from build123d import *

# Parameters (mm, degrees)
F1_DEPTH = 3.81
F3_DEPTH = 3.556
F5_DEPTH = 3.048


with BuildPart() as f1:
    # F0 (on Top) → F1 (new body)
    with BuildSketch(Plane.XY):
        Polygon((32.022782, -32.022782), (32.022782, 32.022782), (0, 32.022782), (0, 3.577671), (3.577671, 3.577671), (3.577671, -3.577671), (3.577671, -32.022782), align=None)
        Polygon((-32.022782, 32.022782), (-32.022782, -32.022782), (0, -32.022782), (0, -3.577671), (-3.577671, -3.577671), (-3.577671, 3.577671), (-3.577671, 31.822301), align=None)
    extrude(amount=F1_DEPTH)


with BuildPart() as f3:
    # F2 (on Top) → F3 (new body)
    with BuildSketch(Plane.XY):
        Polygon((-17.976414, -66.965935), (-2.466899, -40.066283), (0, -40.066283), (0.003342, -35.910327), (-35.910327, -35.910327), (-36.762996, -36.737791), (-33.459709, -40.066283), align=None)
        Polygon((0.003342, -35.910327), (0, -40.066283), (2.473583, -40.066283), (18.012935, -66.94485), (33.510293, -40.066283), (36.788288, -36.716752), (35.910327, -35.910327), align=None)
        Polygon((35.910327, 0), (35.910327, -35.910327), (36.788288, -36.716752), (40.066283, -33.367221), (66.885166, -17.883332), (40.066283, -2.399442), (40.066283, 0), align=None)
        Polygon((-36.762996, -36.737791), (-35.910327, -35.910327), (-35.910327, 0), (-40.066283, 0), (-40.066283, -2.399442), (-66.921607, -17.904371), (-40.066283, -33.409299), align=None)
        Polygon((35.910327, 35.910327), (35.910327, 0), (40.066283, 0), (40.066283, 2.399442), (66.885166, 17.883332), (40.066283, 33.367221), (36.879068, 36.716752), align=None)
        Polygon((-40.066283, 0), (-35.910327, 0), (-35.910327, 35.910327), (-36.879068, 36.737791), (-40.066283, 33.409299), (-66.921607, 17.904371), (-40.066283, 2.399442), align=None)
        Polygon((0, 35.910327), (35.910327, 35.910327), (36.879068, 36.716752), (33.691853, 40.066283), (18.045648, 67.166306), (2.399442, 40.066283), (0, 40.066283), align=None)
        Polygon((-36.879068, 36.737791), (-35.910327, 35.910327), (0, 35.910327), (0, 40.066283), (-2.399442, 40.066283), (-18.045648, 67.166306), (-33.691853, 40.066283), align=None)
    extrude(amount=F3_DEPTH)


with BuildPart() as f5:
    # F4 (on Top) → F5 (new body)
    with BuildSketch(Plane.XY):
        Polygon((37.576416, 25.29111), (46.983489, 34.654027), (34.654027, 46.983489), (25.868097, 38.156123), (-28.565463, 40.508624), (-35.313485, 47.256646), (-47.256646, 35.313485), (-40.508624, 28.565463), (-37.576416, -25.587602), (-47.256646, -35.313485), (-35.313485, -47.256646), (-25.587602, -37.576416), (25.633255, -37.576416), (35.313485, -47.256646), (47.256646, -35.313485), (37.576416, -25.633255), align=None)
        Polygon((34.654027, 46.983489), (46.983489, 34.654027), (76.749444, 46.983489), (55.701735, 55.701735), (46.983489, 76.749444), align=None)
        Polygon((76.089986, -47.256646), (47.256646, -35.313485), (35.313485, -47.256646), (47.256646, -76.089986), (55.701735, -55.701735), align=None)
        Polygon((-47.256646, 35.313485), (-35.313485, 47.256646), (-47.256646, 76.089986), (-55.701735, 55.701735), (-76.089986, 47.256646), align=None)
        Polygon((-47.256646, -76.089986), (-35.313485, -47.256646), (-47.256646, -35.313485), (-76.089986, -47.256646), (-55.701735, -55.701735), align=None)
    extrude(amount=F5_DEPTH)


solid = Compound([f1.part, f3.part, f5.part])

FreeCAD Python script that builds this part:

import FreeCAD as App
import Part
import Sketcher
Q = App.Units.Quantity


def add_polygon(sketch, points):
    """Adds a closed chain of lines whose ends are joined by coincident constraints."""
    first, n = sketch.GeometryCount, len(points)
    for a, b in zip(points, points[1:] + points[:1]):
        sketch.addGeometry(Part.LineSegment(App.Vector(*a, 0), App.Vector(*b, 0)), False)
    for i in range(n):
        sketch.addConstraint(Sketcher.Constraint("Coincident", first + i, 2, first + (i + 1) % n, 1))

doc = App.newDocument("Part")
body = doc.addObject("PartDesign::Body", "Body")
body.AllowCompound = True

# Sketch on XY plane
sketch1 = doc.addObject("Sketcher::SketchObject", "Sketch")
body.addObject(sketch1)
sketch1.AttachmentSupport = (doc.XY_Plane, [""])
sketch1.MapMode = "FlatFace"
add_polygon(sketch1, [(32, -32), (32, 32), (0, 32), (0, 3.6), (3.6, 3.6), (3.6, -32)])  # lines 0-5
add_polygon(sketch1, [(-32, 32), (-32, -32), (0, -32), (0, -3.6), (-3.6, -3.6), (-3.6, 31.8)])  # lines 6-11
sketch1.addConstraint(Sketcher.Constraint("Vertical", 0))
sketch1.addConstraint(Sketcher.Constraint("Horizontal", 1))
sketch1.addConstraint(Sketcher.Constraint("Vertical", 2))
sketch1.addConstraint(Sketcher.Constraint("Horizontal", 3))
sketch1.addConstraint(Sketcher.Constraint("Vertical", 4))
sketch1.addConstraint(Sketcher.Constraint("Horizontal", 5))
sketch1.addConstraint(Sketcher.Constraint("Vertical", 6))
sketch1.addConstraint(Sketcher.Constraint("Horizontal", 7))
sketch1.addConstraint(Sketcher.Constraint("Vertical", 8))
sketch1.addConstraint(Sketcher.Constraint("Horizontal", 9))
sketch1.addConstraint(Sketcher.Constraint("Vertical", 10))
sketch1.addConstraint(Sketcher.Constraint("Symmetric", 0, 2, 6, 2, -1, 1))
sketch1.addConstraint(Sketcher.Constraint("Symmetric", 2, 2, 8, 2, -1, 1))
sketch1.addConstraint(Sketcher.Constraint("PointOnObject", 1, 2, -2))
sketch1.addConstraint(Sketcher.Constraint("Horizontal", 5, 2, 6, 2))
sketch1.addConstraint(Sketcher.Constraint("Horizontal", 1, 2, 11, 2))
sketch1.addConstraint(Sketcher.Constraint("Equal", 3, 9))
sketch1.addConstraint(Sketcher.Constraint("Equal", 5, 2))
sketch1.addConstraint(Sketcher.Constraint("DistanceX", 3, 1, 3, 2, 3.577671))
sketch1.addConstraint(Sketcher.Constraint("DistanceX", 5, 1, 5, 2, 28.445111))
sketch1.addConstraint(Sketcher.Constraint("DistanceY", 10, 1, 10, 2, 35.399972))
sketch1.addConstraint(Sketcher.Constraint("DistanceY", -1, 1, 10, 2, 31.822301))
pad1 = doc.addObject("PartDesign::Pad", "Pad")
body.addObject(pad1)
pad1.Profile = sketch1
pad1.Length = Q("0.15 in")
body2 = doc.addObject("PartDesign::Body", "Body001")

# Sketch on XY plane
sketch2 = doc.addObject("Sketcher::SketchObject", "Sketch001")
body2.addObject(sketch2)
sketch2.AttachmentSupport = (doc.getObject("XY_Plane001"), [""])
sketch2.MapMode = "FlatFace"
add_polygon(sketch2, [(-18, -67), (-2.5, -40.1), (2.5, -40.1), (18, -66.9), (33.5, -40.1), (40.1, -33.4), (66.9, -17.9), (40.1, -2.4), (40.1, 2.4), (66.9, 17.9), (40.1, 33.4), (33.7, 40.1), (18, 67.2), (2.4, 40.1), (-2.4, 40.1), (-18, 67.2), (-33.7, 40.1), (-40.1, 33.4), (-66.9, 17.9), (-40.1, 2.4), (-40.1, -2.4), (-66.9, -17.9), (-40.1, -33.4), (-33.5, -40.1)])  # lines 0-23
add_polygon(sketch2, [(35.9, 35.9), (35.9, -35.9), (-35.9, -35.9), (-35.9, 35.9)])  # lines 24-27
sketch2.addConstraint(Sketcher.Constraint("Horizontal", 1))
sketch2.addConstraint(Sketcher.Constraint("Vertical", 7))
sketch2.addConstraint(Sketcher.Constraint("Horizontal", 13))
sketch2.addConstraint(Sketcher.Constraint("Vertical", 19))
sketch2.addConstraint(Sketcher.Constraint("Vertical", 24))
sketch2.addConstraint(Sketcher.Constraint("Horizontal", 25))
sketch2.addConstraint(Sketcher.Constraint("Vertical", 26))
sketch2.addConstraint(Sketcher.Constraint("Horizontal", 27))
sketch2.addConstraint(Sketcher.Constraint("Symmetric", 6, 2, 18, 2, -1, 1))
sketch2.addConstraint(Sketcher.Constraint("Symmetric", 24, 2, 26, 2, -1, 1))
sketch2.addConstraint(Sketcher.Constraint("Symmetric", 11, 2, 14, 2, -2))
sketch2.addConstraint(Sketcher.Constraint("Symmetric", 10, 2, 15, 2, -2))
sketch2.addConstraint(Sketcher.Constraint("Symmetric", 5, 2, 8, 2, -1))
sketch2.addConstraint(Sketcher.Constraint("Symmetric", 4, 2, 9, 2, -1))
sketch2.addConstraint(Sketcher.Constraint("Symmetric", 17, 2, 20, 2, -1))
sketch2.addConstraint(Sketcher.Constraint("Symmetric", 16, 2, 21, 2, -1))
sketch2.addConstraint(Sketcher.Constraint("Parallel", 0, 3))
sketch2.addConstraint(Sketcher.Constraint("Parallel", 5, 8))
sketch2.addConstraint(Sketcher.Constraint("Parallel", 6, 9))
sketch2.addConstraint(Sketcher.Constraint("Perpendicular", 8, 11))
sketch2.addConstraint(Sketcher.Constraint("Perpendicular", 9, 12))
sketch2.addConstraint(Sketcher.Constraint("Parallel", 11, 14))
sketch2.addConstraint(Sketcher.Constraint("Perpendicular", 14, 17))
sketch2.addConstraint(Sketcher.Constraint("Perpendicular", 15, 18))
sketch2.addConstraint(Sketcher.Constraint("Parallel", 17, 20))
sketch2.addConstraint(Sketcher.Constraint("Horizontal", 1, 2, 3, 2))
sketch2.addConstraint(Sketcher.Constraint("Horizontal", 10, 2, 12, 2))
sketch2.addConstraint(Sketcher.Constraint("Horizontal", 3, 2, 22, 2))
sketch2.addConstraint(Sketcher.Constraint("Vertical", 4, 2, 6, 2))
sketch2.addConstraint(Sketcher.Constraint("Vertical", 16, 2, 18, 2))
sketch2.addConstraint(Sketcher.Constraint("Equal", 13, 7))
sketch2.addConstraint(Sketcher.Constraint("Equal", 27, 24))
sketch2.addConstraint(Sketcher.Constraint("Angle", 5, Q("29.999999 deg")))
sketch2.addConstraint(Sketcher.Constraint("DistanceX", 0, 2, -1, 1, 2.466899))
sketch2.addConstraint(Sketcher.Constraint("DistanceY", -1, 1, 16, 2, 33.409299))
sketch2.addConstraint(Sketcher.Constraint("DistanceX", 1, 2, 4, 2, 37.5927))
sketch2.addConstraint(Sketcher.Constraint("DistanceX", 14, 2, 10, 2, 51.737501))
sketch2.addConstraint(Sketcher.Constraint("Distance", 5, 30.967778))
sketch2.addConstraint(Sketcher.Constraint("Distance", 11, 31.292411))
sketch2.addConstraint(Sketcher.Constraint("Distance", 22, 9.37882))
sketch2.addConstraint(Sketcher.Constraint("DistanceX", 1, 1, 1, 2, 4.940482))
sketch2.addConstraint(Sketcher.Constraint("DistanceX", 25, 2, 25, 1, 71.820654))
sketch2.addConstraint(Sketcher.Constraint("DistanceY", 2, 2, -1, 1, 66.94485))
sketch2.addConstraint(Sketcher.Constraint("DistanceX", 22, 2, -1, 1, 33.459709))
sketch2.addConstraint(Sketcher.Constraint("DistanceX", 1, 2, 2, 2, 15.539352))
sketch2.addConstraint(Sketcher.Constraint("DistanceX", 1, 2, 3, 2, 31.03671))
sketch2.addConstraint(Sketcher.Constraint("DistanceY", 9, 2, 10, 2, 6.699062))
sketch2.addConstraint(Sketcher.Constraint("DistanceX", 23, 2, 2, 2, 35.989349))
pad2 = doc.addObject("PartDesign::Pad", "Pad001")
body2.addObject(pad2)
pad2.Profile = sketch2
pad2.Length = Q("0.14 in")
body3 = doc.addObject("PartDesign::Body", "Body002")

# Sketch on XY plane
sketch3 = doc.addObject("Sketcher::SketchObject", "Sketch002")
body3.addObject(sketch3)
sketch3.AttachmentSupport = (doc.getObject("XY_Plane002"), [""])
sketch3.MapMode = "FlatFace"
add_polygon(sketch3, [(38, 25), (47, 35), (77, 47), (56, 56), (47, 77), (35, 47), (26, 38), (-29, 41), (-35, 47), (-47, 76), (-56, 56), (-76, 47), (-47, 35), (-41, 29), (-38, -26), (-47, -35), (-76, -47), (-56, -56), (-47, -76), (-35, -47), (-26, -38), (26, -38), (35, -47), (47, -76), (56, -56), (76, -47), (47, -35), (38, -26)])  # lines 0-27
sketch3.addConstraint(Sketcher.Constraint("Horizontal", 20))
sketch3.addConstraint(Sketcher.Constraint("Vertical", 27))
sketch3.addConstraint(Sketcher.Constraint("Symmetric", 2, 2, 16, 2, -1, 1))
sketch3.addConstraint(Sketcher.Constraint("Symmetric", 7, 2, 21, 2, -1, 1))
sketch3.addConstraint(Sketcher.Constraint("Symmetric", 8, 2, 22, 2, -1, 1))
sketch3.addConstraint(Sketcher.Constraint("Symmetric", 9, 2, 23, 2, -1, 1))
sketch3.addConstraint(Sketcher.Constraint("Symmetric", 10, 2, 24, 2, -1, 1))
sketch3.addConstraint(Sketcher.Constraint("Symmetric", 11, 2, 25, 2, -1, 1))
sketch3.addConstraint(Sketcher.Constraint("Symmetric", 2, 2, 9, 2, -2))
sketch3.addConstraint(Sketcher.Constraint("Symmetric", 18, 2, 21, 2, -2))
sketch3.addConstraint(Sketcher.Constraint("Symmetric", 17, 2, 22, 2, -2))
sketch3.addConstraint(Sketcher.Constraint("Symmetric", 15, 2, 24, 2, -2))
sketch3.addConstraint(Sketcher.Constraint("Symmetric", 14, 2, 25, 2, -2))
sketch3.addConstraint(Sketcher.Constraint("Perpendicular", 1, 3))
sketch3.addConstraint(Sketcher.Constraint("Perpendicular", 2, 4))
sketch3.addConstraint(Sketcher.Constraint("Parallel", 3, 8))
sketch3.addConstraint(Sketcher.Constraint("Parallel", 4, 9))
sketch3.addConstraint(Sketcher.Constraint("Perpendicular", 8, 10))
sketch3.addConstraint(Sketcher.Constraint("Perpendicular", 9, 11))
sketch3.addConstraint(Sketcher.Constraint("Parallel", 7, 12))
sketch3.addConstraint(Sketcher.Constraint("Parallel", 5, 14))
sketch3.addConstraint(Sketcher.Constraint("Parallel", 10, 15))
sketch3.addConstraint(Sketcher.Constraint("Parallel", 0, 19))
sketch3.addConstraint(Sketcher.Constraint("Parallel", 12, 21))
sketch3.addConstraint(Sketcher.Constraint("Parallel", 21, 26))
sketch3.addConstraint(Sketcher.Constraint("Horizontal", 1, 2, 4, 2))
sketch3.addConstraint(Sketcher.Constraint("Horizontal", 7, 2, 10, 2))
sketch3.addConstraint(Sketcher.Constraint("Vertical", 0, 2, 3, 2))
sketch3.addConstraint(Sketcher.Constraint("Vertical", 8, 2, 11, 2))
sketch3.addConstraint(Sketcher.Constraint("Equal", 2, 3))
sketch3.addConstraint(Sketcher.Constraint("Equal", 9, 10))
sketch3.addConstraint(Sketcher.Constraint("Equal", 7, 12))
sketch3.addConstraint(Sketcher.Constraint("Equal", 14, 19))
sketch3.addConstraint(Sketcher.Constraint("Equal", 21, 26))
sketch3.addConstraint(Sketcher.Constraint("Angle", 7, Q("135 deg")))
sketch3.addConstraint(Sketcher.Constraint("Angle", 1, Q("22.5 deg")))
sketch3.addConstraint(Sketcher.Constraint("Distance", 8, Q("1.2287001 in")))
sketch3.addConstraint(Sketcher.Constraint("DistanceY", 0, 2, 3, 2, Q("1.6572999 in")))
sketch3.addConstraint(Sketcher.Constraint("DistanceY", 5, 2, 6, 2, 2.352501))
sketch3.addConstraint(Sketcher.Constraint("DistanceX", 6, 2, 2, 2, 84.267198))
sketch3.addConstraint(Sketcher.Constraint("DistanceY", 16, 2, 12, 2, 84.267198))
sketch3.addConstraint(Sketcher.Constraint("DistanceX", 14, 2, 20, 2, 72.889901))
sketch3.addConstraint(Sketcher.Constraint("DistanceX", 13, 2, 21, 2, 72.889901))
sketch3.addConstraint(Sketcher.Constraint("Distance", 6, 54.484371))
sketch3.addConstraint(Sketcher.Constraint("Distance", 13, 54.232392))
pad3 = doc.addObject("PartDesign::Pad", "Pad002")
body3.addObject(pad3)
pad3.Profile = sketch3
pad3.Length = Q("0.12 in")

doc.recompute()
